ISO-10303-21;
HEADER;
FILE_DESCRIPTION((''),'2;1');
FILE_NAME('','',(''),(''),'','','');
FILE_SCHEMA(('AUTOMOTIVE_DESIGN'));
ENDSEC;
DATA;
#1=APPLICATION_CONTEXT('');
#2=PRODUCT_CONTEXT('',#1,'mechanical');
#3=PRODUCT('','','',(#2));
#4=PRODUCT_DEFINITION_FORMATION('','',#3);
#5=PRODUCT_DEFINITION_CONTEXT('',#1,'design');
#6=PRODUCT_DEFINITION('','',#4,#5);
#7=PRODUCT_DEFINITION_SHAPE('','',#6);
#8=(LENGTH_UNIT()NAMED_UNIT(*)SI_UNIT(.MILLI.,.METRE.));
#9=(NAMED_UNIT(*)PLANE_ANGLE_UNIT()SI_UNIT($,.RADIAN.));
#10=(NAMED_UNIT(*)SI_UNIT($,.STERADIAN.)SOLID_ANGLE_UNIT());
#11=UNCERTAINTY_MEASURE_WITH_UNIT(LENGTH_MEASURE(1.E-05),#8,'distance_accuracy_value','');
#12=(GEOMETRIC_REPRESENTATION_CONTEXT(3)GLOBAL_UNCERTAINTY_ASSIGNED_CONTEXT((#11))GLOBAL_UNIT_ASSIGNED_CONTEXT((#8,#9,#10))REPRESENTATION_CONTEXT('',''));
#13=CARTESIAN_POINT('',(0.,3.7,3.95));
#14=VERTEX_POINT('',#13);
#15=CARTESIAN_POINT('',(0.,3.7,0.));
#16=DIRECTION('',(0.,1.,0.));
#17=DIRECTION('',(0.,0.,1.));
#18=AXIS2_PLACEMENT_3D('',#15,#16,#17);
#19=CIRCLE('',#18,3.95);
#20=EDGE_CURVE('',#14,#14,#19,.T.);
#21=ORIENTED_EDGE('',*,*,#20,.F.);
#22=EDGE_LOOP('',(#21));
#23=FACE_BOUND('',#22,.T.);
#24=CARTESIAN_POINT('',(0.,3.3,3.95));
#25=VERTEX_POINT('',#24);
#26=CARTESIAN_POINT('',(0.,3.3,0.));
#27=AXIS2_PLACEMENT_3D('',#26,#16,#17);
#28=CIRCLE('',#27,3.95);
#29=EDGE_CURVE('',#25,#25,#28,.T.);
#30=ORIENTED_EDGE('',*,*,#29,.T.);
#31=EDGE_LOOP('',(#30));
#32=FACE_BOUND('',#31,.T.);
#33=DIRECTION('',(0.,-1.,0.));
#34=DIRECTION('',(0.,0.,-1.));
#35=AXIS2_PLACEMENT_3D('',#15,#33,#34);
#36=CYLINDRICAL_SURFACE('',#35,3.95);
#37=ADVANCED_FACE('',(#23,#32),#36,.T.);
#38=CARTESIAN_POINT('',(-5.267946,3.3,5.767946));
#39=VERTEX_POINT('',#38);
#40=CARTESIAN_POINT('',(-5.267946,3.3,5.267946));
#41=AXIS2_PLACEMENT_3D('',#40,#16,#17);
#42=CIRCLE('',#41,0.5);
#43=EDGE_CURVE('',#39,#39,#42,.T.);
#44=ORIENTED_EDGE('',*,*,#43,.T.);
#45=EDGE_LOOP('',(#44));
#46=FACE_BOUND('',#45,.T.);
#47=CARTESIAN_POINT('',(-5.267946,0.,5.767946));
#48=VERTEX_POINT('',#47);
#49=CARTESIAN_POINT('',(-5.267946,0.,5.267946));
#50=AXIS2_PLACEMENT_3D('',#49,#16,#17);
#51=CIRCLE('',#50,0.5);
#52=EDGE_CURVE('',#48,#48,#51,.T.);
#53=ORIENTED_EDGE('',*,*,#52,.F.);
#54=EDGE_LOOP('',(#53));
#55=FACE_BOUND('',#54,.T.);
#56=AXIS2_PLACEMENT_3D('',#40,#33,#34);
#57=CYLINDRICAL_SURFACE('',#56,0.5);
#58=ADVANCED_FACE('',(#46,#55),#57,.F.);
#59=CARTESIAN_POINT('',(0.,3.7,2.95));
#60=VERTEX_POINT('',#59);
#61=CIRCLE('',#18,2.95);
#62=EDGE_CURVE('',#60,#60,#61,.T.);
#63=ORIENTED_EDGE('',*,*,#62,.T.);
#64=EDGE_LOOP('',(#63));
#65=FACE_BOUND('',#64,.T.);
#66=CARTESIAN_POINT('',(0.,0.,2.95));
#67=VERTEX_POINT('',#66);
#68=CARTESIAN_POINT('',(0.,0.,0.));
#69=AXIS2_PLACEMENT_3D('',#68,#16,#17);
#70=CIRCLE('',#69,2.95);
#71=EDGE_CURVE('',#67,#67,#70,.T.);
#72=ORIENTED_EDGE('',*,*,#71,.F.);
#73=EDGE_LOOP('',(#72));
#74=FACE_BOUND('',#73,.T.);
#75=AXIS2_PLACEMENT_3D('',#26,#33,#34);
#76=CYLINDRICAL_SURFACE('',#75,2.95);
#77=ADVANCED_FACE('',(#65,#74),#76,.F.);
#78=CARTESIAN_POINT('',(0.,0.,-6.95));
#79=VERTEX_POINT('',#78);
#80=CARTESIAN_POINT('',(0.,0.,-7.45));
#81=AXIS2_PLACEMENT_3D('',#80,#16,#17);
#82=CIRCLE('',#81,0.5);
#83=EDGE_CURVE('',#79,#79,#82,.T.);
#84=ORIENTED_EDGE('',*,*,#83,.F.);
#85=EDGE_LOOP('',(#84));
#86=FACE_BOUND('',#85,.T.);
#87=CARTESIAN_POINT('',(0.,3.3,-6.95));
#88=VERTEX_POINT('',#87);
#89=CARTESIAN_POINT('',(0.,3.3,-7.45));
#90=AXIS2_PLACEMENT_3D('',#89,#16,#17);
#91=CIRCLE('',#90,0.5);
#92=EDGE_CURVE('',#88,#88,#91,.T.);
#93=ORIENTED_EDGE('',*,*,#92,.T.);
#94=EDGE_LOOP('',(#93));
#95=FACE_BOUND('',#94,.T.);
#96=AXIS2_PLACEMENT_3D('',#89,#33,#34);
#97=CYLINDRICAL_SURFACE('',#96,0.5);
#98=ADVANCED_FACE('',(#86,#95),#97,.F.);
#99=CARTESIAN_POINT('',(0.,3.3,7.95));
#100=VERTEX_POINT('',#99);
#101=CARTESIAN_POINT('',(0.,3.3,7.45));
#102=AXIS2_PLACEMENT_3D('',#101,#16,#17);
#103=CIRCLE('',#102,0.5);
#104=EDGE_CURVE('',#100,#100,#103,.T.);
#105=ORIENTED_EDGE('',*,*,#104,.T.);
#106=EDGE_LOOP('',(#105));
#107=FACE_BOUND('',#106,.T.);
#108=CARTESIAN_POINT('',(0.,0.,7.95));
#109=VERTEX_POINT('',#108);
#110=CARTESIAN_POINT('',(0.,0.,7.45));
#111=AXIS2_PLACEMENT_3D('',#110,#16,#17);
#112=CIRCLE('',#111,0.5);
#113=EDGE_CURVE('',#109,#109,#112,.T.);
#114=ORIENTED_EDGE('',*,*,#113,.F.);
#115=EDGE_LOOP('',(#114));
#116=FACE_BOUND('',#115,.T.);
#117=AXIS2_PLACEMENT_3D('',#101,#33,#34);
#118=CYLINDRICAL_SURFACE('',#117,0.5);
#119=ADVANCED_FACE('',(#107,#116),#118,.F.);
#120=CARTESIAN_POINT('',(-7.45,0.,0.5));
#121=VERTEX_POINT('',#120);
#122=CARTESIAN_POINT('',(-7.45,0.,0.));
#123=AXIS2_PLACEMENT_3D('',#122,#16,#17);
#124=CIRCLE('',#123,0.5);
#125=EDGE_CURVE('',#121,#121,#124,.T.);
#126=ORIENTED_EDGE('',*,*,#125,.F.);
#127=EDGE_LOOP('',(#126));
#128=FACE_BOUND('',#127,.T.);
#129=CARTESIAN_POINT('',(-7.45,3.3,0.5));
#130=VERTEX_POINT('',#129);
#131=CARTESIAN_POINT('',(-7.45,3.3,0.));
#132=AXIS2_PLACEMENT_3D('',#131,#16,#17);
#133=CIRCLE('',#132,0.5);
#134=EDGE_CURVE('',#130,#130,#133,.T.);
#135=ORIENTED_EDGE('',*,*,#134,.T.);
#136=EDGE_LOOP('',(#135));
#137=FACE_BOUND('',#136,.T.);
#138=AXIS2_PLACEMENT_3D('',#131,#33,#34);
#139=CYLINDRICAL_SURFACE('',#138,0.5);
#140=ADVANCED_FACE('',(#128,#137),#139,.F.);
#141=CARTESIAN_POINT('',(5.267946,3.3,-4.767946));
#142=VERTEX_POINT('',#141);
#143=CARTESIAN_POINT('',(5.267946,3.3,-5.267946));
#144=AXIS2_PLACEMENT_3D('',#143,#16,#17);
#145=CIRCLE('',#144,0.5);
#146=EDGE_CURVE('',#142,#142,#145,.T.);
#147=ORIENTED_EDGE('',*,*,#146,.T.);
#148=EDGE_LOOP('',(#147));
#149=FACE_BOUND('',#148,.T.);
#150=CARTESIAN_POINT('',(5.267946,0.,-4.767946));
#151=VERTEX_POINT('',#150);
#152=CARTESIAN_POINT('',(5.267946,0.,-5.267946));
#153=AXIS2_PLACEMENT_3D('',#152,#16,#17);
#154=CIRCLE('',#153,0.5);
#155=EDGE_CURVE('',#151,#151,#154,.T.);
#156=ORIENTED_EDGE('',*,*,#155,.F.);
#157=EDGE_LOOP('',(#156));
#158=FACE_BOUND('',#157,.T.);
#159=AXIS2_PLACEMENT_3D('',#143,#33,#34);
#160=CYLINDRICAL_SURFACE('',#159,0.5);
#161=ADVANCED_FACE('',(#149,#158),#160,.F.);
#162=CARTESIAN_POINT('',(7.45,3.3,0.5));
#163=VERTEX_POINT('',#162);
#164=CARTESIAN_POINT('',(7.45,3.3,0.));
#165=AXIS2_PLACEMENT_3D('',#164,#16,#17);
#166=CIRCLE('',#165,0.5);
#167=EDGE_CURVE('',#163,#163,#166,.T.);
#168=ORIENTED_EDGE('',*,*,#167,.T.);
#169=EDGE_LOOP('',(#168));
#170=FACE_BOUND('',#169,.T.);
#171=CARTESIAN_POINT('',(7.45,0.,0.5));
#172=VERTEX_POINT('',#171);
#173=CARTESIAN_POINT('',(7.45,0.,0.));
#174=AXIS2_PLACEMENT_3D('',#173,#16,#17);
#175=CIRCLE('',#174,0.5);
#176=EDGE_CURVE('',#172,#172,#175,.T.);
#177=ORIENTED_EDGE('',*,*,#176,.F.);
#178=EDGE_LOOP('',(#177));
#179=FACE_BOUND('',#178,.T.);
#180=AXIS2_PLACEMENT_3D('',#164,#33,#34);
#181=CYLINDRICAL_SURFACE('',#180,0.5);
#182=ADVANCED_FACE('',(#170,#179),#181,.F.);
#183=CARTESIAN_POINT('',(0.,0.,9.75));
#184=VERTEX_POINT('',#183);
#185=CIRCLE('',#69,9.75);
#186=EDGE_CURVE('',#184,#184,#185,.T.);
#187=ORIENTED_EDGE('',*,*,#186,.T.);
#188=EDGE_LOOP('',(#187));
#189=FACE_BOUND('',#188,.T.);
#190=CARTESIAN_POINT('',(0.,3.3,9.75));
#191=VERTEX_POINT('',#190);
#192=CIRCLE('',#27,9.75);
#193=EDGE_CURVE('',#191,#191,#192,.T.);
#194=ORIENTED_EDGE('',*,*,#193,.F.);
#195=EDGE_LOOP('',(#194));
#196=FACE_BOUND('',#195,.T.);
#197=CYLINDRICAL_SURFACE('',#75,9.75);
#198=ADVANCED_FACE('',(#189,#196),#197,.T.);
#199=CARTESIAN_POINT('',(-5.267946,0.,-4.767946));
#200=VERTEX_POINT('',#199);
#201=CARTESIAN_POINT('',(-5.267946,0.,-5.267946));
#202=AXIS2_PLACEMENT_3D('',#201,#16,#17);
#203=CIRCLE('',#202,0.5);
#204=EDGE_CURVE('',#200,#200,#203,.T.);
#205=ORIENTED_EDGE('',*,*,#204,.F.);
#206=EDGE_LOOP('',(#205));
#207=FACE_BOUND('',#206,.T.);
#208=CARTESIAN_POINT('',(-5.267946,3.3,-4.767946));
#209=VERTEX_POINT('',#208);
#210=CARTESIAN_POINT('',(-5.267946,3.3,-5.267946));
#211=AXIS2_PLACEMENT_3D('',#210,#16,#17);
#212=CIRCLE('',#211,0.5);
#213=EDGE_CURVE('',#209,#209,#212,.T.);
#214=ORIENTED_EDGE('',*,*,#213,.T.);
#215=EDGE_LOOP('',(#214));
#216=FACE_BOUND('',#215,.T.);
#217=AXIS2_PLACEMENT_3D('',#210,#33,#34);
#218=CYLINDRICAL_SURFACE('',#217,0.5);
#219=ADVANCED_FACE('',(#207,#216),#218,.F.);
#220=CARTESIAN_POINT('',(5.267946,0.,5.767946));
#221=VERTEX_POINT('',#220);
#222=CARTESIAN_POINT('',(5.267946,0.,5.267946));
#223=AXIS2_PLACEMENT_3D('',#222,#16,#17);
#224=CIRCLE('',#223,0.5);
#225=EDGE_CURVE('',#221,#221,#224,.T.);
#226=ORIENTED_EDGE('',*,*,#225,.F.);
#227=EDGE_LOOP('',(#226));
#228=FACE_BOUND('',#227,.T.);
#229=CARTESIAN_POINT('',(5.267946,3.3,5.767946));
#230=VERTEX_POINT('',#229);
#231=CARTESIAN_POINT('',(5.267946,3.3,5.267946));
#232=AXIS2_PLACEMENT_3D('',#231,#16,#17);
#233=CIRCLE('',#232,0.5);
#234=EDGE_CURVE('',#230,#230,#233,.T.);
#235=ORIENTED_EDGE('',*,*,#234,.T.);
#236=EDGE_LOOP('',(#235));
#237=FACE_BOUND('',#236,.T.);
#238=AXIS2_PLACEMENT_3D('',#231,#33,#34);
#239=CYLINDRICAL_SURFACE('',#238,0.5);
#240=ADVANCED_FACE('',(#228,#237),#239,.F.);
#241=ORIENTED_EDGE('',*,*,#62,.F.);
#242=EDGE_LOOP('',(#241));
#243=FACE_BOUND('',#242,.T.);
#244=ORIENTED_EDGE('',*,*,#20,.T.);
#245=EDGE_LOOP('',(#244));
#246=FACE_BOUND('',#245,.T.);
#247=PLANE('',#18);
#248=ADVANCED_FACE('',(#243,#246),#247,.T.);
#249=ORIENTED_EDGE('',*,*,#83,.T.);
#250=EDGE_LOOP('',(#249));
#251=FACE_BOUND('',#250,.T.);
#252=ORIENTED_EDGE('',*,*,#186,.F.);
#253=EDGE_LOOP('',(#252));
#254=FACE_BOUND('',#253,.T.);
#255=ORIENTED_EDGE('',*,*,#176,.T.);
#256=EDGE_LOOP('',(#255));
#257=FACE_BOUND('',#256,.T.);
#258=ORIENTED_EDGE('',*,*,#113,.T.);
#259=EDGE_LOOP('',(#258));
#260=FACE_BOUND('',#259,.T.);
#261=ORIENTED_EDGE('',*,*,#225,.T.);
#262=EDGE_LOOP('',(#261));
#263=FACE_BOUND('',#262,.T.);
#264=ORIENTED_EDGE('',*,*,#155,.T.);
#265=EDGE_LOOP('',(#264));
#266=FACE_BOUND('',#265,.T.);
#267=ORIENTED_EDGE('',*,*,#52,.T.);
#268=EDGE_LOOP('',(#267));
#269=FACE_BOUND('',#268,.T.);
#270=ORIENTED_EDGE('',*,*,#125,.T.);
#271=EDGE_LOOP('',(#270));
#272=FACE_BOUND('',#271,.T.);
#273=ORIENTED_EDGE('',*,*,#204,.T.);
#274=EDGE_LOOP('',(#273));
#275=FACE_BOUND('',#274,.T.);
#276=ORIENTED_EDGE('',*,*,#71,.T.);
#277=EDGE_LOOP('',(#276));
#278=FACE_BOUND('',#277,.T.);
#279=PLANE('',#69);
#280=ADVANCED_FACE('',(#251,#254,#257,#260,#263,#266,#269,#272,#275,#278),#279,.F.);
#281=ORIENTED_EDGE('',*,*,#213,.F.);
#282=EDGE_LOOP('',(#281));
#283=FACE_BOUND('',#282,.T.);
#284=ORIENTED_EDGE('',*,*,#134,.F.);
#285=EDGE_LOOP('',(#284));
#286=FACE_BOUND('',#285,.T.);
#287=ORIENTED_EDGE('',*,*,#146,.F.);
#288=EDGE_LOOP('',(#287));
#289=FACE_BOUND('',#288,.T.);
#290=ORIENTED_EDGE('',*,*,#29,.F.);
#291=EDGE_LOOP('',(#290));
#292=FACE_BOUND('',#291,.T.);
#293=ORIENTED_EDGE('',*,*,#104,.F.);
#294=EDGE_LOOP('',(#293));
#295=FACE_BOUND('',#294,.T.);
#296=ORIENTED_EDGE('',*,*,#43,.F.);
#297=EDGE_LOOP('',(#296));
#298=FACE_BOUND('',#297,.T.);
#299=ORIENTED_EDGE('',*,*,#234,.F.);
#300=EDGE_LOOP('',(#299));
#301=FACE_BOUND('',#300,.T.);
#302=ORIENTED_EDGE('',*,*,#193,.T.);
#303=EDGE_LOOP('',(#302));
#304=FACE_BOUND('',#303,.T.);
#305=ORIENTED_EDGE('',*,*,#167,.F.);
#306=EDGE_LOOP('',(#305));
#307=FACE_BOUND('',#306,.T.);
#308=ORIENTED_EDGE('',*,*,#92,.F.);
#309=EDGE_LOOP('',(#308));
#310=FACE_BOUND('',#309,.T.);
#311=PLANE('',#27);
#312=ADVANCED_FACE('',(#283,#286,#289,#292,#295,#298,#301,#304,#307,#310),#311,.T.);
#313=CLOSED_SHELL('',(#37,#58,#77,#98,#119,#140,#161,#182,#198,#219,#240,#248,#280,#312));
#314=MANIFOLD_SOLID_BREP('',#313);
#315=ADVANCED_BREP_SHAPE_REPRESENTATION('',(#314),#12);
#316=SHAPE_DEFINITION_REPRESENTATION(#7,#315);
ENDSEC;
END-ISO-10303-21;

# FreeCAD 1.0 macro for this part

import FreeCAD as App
import Part
import Sketcher
from FreeCAD import Vector

doc = App.newDocument("Part")
body = doc.addObject("PartDesign::Body", "Body")

# Sketch on XZ plane
sketch1 = body.newObject("Sketcher::SketchObject", "Sketch")
sketch1.AttachmentSupport = (doc.getObject("XZ_Plane"), [""])
sketch1.MapMode = "FlatFace"
sketch1.addGeometry([
    Part.Circle(Vector(0, 0, 0), Vector(0, 0, 1), 9.8),  # 0
    Part.Circle(Vector(-5.3, -5.3, 0), Vector(0, 0, 1), 0.5),  # 1
    Part.Circle(Vector(0, -7.5, 0), Vector(0, 0, 1), 0.5),  # 2
    Part.Circle(Vector(-7.5, 0, 0), Vector(0, 0, 1), 0.5),  # 3
    Part.Circle(Vector(-5.3, 5.3, 0), Vector(0, 0, 1), 0.5),  # 4
    Part.Circle(Vector(5.3, -5.3, 0), Vector(0, 0, 1), 0.5),  # 5
    Part.Circle(Vector(7.5, 0, 0), Vector(0, 0, 1), 0.5),  # 6
    Part.Circle(Vector(0, 0, 0), Vector(0, 0, 1), 3),  # 7
    Part.Circle(Vector(0, 7.5, 0), Vector(0, 0, 1), 0.5),  # 8
    Part.Circle(Vector(5.3, 5.3, 0), Vector(0, 0, 1), 0.5),  # 9
], False)
sketch1.addConstraint([
    Sketcher.Constraint("Coincident", 0, 3, -1, 1),
    Sketcher.Constraint("Coincident", 7, 3, -1, 1),
    Sketcher.Constraint("Equal", 1, 2),
    Sketcher.Constraint("Equal", 2, 3),
    Sketcher.Constraint("Equal", 3, 4),
    Sketcher.Constraint("Equal", 4, 5),
    Sketcher.Constraint("Equal", 5, 6),
    Sketcher.Constraint("Equal", 6, 8),
    Sketcher.Constraint("Equal", 8, 9),
    Sketcher.Constraint("Symmetric", 4, 3, 5, 3, -1, 1),
    Sketcher.Constraint("Symmetric", 3, 3, 6, 3, -1, 1),
    Sketcher.Constraint("Symmetric", 2, 3, 8, 3, -1, 1),
    Sketcher.Constraint("Symmetric", 1, 3, 9, 3, -1, 1),
    Sketcher.Constraint("Symmetric", 1, 3, 5, 3, -2),
    Sketcher.Constraint("PointOnObject", 2, 3, -2),
    Sketcher.Constraint("PointOnObject", 3, 3, -1),
    Sketcher.Constraint("Diameter", 1, 1.0),
    Sketcher.Constraint("Diameter", 0, 19.5),
    Sketcher.Constraint("Diameter", 7, 5.9),
    Sketcher.Constraint("DistanceY", 2, 3, -1, 1, 7.45),
    Sketcher.Constraint("DistanceX", 3, 3, -1, 1, 7.45),
    Sketcher.Constraint("DistanceY", 1, 3, 4, 3, 10.535891),
    Sketcher.Constraint("DistanceX", 1, 3, 5, 3, 10.535891),
])
pad1 = body.newObject("PartDesign::Pad", "Pad")
pad1.Profile = sketch1
pad1.Length = 3.3
pad1.Reversed = True

# Sketch on XZ plane
sketch2 = body.newObject("Sketcher::SketchObject", "Sketch001")
sketch2.AttachmentSupport = (doc.getObject("XZ_Plane"), [""])
sketch2.MapMode = "FlatFace"
sketch2.AttachmentOffset = App.Placement(Vector(0, 0, -3.3), App.Rotation())
sketch2.addGeometry([
    Part.Circle(Vector(0, 0, 0), Vector(0, 0, 1), 4),
    Part.Circle(Vector(0, 0, 0), Vector(0, 0, 1), 3),
], False)
sketch2.addConstraint([
    Sketcher.Constraint("Coincident", 0, 3, -1, 1),
    Sketcher.Constraint("Coincident", 1, 3, -1, 1),
    Sketcher.Constraint("Diameter", 0, 7.9),
    Sketcher.Constraint("Diameter", 1, 5.9),
])
pad2 = body.newObject("PartDesign::Pad", "Pad001")
pad2.Profile = sketch2
pad2.Length = 0.4
pad2.Reversed = True

doc.recompute()
